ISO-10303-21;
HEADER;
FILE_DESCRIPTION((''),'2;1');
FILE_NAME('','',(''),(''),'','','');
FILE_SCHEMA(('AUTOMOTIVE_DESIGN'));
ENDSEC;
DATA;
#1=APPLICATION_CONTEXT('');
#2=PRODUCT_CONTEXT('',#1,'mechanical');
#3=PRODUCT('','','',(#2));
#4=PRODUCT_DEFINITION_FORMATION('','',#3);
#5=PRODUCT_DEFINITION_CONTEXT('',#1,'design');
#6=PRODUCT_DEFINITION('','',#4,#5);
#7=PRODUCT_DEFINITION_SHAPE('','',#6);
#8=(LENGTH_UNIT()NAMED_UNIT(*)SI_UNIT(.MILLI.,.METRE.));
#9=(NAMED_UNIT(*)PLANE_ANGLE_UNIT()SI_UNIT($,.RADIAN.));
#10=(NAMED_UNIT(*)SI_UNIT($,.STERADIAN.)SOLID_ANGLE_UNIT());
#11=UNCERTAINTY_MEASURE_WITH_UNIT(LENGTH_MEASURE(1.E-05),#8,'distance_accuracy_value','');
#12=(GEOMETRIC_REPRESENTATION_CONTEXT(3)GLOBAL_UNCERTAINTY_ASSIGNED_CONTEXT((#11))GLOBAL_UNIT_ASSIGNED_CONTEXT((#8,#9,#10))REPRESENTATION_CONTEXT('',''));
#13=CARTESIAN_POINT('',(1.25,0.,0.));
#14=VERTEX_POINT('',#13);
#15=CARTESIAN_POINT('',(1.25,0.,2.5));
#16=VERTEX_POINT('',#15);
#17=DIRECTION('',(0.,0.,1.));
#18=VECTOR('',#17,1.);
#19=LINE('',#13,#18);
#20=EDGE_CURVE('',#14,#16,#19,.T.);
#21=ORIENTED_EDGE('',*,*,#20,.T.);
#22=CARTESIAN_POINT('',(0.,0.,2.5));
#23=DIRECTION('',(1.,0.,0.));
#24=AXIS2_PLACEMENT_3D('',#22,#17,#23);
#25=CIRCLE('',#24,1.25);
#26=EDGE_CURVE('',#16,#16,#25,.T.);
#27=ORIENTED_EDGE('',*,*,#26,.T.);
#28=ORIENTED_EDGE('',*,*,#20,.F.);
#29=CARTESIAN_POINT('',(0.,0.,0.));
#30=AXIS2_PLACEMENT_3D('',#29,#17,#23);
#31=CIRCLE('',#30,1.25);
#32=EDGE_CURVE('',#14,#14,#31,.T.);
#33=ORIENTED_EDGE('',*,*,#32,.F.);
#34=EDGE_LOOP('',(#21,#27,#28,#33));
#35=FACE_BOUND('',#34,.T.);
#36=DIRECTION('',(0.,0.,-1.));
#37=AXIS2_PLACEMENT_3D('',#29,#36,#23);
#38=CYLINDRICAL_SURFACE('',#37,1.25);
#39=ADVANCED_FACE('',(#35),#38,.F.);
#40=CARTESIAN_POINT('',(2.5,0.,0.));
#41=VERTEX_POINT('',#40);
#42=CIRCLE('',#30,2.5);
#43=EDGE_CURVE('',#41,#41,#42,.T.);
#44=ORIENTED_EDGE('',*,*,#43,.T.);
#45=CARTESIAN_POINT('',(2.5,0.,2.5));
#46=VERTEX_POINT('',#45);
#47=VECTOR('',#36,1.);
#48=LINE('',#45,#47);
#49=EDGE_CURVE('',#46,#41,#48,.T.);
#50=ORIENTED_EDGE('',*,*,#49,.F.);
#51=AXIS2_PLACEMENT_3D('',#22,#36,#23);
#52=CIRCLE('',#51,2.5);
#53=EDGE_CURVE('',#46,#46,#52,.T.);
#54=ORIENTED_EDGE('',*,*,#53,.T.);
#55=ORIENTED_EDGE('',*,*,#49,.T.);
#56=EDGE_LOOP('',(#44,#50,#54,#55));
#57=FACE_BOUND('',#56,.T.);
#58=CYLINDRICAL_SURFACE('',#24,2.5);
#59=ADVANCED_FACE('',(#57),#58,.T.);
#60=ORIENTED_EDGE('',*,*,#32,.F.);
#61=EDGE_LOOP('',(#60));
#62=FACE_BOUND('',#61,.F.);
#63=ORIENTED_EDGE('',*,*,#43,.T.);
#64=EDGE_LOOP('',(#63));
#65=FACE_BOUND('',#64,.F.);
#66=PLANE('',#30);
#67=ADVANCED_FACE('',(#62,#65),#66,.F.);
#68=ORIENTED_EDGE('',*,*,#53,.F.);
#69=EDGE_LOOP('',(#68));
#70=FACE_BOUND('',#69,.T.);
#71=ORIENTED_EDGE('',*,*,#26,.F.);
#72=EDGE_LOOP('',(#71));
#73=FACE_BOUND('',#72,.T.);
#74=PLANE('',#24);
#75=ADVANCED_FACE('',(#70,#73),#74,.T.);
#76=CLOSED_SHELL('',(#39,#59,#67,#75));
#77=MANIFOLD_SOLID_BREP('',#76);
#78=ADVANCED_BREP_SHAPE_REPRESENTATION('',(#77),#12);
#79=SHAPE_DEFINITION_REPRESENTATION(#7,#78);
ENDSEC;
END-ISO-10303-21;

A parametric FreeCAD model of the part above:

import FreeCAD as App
import Part
import Sketcher
from FreeCAD import Vector


def add_polygon(sketch, points):
    """Adds a closed chain of lines whose ends are joined by coincident constraints."""
    first, n = sketch.GeometryCount, len(points)
    for a, b in zip(points, points[1:] + points[:1]):
        sketch.addGeometry(Part.LineSegment(App.Vector(*a, 0), App.Vector(*b, 0)), False)
    for i in range(n):
        sketch.addConstraint(Sketcher.Constraint("Coincident", first + i, 2, first + (i + 1) % n, 1))

doc = App.newDocument("Part")
params = doc.addObject("Spreadsheet::Sheet", "Params")
for row, (alias, value) in enumerate([
    ("sketch1_diameter", "2.5 mm"),
    ("sketch1_width", "5 mm"),
    ("pad1_length", "2.5 mm"),
    ("sketch2_diameter", "5 mm"),
    ("pocket1_length", "10 mm"),
], start=1):
    params.set(f"A{row}", alias)
    params.set(f"B{row}", "=" + value)
    params.setAlias(f"B{row}", alias)

body = doc.addObject("PartDesign::Body", "Body")

sketch1 = doc.addObject("Sketcher::SketchObject", "Sketch")
body.addObject(sketch1)
sketch1.AttachmentSupport = (doc.XY_Plane, [""])
sketch1.MapMode = "FlatFace"
add_polygon(sketch1, [(-2.5, -2.5), (2.5, -2.5), (2.5, 2.5), (-2.5, 2.5)])
sketch1.addGeometry(Part.Circle(Vector(0, 0, 0), Vector(0, 0, 1), 1.25), False)
sketch1.addConstraint(Sketcher.Constraint("Horizontal", 0))
sketch1.addConstraint(Sketcher.Constraint("Vertical", 1))
sketch1.addConstraint(Sketcher.Constraint("Horizontal", 2))
sketch1.addConstraint(Sketcher.Constraint("Vertical", 3))
sketch1.addConstraint(Sketcher.Constraint("Coincident", 4, 3, -1, 1))
sketch1.addConstraint(Sketcher.Constraint("Symmetric", 0, 2, 2, 2, -1, 1))
sketch1.addConstraint(Sketcher.Constraint("Equal", 2, 1))
sketch1.addConstraint(Sketcher.Constraint("Diameter", 4, 2.5))
sketch1.addConstraint(Sketcher.Constraint("DistanceX", 0, 1, 0, 2, 5.0))
sketch1.setExpression("Constraints[11]", "Params.sketch1_diameter")
sketch1.setExpression("Constraints[12]", "Params.sketch1_width")
pad1 = doc.addObject("PartDesign::Pad", "Pad")
body.addObject(pad1)
pad1.Profile = sketch1
pad1.setExpression("Length", "Params.pad1_length")

sketch2 = doc.addObject("Sketcher::SketchObject", "Sketch001")
body.addObject(sketch2)
sketch2.AttachmentSupport = (doc.XY_Plane, [""])
sketch2.MapMode = "FlatFace"
sketch2.AttachmentOffset = App.Placement(Vector(0, 0, 2.5), App.Rotation())
sketch2.addGeometry(Part.Circle(Vector(0, 0, 0), Vector(0, 0, 1), 4.0791), False)
sketch2.addGeometry(Part.Circle(Vector(0, 0, 0), Vector(0, 0, 1), 2.5), False)
sketch2.addConstraint(Sketcher.Constraint("Coincident", 0, 3, -1, 1))
sketch2.addConstraint(Sketcher.Constraint("Coincident", 1, 3, -1, 1))
sketch2.addConstraint(Sketcher.Constraint("Diameter", 1, 5.0))
sketch2.addConstraint(Sketcher.Constraint("Diameter", 0, 8.1582))
sketch2.setExpression("Constraints[2]", "Params.sketch2_diameter")
pocket1 = doc.addObject("PartDesign::Pocket", "Pocket")
body.addObject(pocket1)
pocket1.Profile = sketch2
pocket1.setExpression("Length", "Params.pocket1_length")

doc.recompute()
